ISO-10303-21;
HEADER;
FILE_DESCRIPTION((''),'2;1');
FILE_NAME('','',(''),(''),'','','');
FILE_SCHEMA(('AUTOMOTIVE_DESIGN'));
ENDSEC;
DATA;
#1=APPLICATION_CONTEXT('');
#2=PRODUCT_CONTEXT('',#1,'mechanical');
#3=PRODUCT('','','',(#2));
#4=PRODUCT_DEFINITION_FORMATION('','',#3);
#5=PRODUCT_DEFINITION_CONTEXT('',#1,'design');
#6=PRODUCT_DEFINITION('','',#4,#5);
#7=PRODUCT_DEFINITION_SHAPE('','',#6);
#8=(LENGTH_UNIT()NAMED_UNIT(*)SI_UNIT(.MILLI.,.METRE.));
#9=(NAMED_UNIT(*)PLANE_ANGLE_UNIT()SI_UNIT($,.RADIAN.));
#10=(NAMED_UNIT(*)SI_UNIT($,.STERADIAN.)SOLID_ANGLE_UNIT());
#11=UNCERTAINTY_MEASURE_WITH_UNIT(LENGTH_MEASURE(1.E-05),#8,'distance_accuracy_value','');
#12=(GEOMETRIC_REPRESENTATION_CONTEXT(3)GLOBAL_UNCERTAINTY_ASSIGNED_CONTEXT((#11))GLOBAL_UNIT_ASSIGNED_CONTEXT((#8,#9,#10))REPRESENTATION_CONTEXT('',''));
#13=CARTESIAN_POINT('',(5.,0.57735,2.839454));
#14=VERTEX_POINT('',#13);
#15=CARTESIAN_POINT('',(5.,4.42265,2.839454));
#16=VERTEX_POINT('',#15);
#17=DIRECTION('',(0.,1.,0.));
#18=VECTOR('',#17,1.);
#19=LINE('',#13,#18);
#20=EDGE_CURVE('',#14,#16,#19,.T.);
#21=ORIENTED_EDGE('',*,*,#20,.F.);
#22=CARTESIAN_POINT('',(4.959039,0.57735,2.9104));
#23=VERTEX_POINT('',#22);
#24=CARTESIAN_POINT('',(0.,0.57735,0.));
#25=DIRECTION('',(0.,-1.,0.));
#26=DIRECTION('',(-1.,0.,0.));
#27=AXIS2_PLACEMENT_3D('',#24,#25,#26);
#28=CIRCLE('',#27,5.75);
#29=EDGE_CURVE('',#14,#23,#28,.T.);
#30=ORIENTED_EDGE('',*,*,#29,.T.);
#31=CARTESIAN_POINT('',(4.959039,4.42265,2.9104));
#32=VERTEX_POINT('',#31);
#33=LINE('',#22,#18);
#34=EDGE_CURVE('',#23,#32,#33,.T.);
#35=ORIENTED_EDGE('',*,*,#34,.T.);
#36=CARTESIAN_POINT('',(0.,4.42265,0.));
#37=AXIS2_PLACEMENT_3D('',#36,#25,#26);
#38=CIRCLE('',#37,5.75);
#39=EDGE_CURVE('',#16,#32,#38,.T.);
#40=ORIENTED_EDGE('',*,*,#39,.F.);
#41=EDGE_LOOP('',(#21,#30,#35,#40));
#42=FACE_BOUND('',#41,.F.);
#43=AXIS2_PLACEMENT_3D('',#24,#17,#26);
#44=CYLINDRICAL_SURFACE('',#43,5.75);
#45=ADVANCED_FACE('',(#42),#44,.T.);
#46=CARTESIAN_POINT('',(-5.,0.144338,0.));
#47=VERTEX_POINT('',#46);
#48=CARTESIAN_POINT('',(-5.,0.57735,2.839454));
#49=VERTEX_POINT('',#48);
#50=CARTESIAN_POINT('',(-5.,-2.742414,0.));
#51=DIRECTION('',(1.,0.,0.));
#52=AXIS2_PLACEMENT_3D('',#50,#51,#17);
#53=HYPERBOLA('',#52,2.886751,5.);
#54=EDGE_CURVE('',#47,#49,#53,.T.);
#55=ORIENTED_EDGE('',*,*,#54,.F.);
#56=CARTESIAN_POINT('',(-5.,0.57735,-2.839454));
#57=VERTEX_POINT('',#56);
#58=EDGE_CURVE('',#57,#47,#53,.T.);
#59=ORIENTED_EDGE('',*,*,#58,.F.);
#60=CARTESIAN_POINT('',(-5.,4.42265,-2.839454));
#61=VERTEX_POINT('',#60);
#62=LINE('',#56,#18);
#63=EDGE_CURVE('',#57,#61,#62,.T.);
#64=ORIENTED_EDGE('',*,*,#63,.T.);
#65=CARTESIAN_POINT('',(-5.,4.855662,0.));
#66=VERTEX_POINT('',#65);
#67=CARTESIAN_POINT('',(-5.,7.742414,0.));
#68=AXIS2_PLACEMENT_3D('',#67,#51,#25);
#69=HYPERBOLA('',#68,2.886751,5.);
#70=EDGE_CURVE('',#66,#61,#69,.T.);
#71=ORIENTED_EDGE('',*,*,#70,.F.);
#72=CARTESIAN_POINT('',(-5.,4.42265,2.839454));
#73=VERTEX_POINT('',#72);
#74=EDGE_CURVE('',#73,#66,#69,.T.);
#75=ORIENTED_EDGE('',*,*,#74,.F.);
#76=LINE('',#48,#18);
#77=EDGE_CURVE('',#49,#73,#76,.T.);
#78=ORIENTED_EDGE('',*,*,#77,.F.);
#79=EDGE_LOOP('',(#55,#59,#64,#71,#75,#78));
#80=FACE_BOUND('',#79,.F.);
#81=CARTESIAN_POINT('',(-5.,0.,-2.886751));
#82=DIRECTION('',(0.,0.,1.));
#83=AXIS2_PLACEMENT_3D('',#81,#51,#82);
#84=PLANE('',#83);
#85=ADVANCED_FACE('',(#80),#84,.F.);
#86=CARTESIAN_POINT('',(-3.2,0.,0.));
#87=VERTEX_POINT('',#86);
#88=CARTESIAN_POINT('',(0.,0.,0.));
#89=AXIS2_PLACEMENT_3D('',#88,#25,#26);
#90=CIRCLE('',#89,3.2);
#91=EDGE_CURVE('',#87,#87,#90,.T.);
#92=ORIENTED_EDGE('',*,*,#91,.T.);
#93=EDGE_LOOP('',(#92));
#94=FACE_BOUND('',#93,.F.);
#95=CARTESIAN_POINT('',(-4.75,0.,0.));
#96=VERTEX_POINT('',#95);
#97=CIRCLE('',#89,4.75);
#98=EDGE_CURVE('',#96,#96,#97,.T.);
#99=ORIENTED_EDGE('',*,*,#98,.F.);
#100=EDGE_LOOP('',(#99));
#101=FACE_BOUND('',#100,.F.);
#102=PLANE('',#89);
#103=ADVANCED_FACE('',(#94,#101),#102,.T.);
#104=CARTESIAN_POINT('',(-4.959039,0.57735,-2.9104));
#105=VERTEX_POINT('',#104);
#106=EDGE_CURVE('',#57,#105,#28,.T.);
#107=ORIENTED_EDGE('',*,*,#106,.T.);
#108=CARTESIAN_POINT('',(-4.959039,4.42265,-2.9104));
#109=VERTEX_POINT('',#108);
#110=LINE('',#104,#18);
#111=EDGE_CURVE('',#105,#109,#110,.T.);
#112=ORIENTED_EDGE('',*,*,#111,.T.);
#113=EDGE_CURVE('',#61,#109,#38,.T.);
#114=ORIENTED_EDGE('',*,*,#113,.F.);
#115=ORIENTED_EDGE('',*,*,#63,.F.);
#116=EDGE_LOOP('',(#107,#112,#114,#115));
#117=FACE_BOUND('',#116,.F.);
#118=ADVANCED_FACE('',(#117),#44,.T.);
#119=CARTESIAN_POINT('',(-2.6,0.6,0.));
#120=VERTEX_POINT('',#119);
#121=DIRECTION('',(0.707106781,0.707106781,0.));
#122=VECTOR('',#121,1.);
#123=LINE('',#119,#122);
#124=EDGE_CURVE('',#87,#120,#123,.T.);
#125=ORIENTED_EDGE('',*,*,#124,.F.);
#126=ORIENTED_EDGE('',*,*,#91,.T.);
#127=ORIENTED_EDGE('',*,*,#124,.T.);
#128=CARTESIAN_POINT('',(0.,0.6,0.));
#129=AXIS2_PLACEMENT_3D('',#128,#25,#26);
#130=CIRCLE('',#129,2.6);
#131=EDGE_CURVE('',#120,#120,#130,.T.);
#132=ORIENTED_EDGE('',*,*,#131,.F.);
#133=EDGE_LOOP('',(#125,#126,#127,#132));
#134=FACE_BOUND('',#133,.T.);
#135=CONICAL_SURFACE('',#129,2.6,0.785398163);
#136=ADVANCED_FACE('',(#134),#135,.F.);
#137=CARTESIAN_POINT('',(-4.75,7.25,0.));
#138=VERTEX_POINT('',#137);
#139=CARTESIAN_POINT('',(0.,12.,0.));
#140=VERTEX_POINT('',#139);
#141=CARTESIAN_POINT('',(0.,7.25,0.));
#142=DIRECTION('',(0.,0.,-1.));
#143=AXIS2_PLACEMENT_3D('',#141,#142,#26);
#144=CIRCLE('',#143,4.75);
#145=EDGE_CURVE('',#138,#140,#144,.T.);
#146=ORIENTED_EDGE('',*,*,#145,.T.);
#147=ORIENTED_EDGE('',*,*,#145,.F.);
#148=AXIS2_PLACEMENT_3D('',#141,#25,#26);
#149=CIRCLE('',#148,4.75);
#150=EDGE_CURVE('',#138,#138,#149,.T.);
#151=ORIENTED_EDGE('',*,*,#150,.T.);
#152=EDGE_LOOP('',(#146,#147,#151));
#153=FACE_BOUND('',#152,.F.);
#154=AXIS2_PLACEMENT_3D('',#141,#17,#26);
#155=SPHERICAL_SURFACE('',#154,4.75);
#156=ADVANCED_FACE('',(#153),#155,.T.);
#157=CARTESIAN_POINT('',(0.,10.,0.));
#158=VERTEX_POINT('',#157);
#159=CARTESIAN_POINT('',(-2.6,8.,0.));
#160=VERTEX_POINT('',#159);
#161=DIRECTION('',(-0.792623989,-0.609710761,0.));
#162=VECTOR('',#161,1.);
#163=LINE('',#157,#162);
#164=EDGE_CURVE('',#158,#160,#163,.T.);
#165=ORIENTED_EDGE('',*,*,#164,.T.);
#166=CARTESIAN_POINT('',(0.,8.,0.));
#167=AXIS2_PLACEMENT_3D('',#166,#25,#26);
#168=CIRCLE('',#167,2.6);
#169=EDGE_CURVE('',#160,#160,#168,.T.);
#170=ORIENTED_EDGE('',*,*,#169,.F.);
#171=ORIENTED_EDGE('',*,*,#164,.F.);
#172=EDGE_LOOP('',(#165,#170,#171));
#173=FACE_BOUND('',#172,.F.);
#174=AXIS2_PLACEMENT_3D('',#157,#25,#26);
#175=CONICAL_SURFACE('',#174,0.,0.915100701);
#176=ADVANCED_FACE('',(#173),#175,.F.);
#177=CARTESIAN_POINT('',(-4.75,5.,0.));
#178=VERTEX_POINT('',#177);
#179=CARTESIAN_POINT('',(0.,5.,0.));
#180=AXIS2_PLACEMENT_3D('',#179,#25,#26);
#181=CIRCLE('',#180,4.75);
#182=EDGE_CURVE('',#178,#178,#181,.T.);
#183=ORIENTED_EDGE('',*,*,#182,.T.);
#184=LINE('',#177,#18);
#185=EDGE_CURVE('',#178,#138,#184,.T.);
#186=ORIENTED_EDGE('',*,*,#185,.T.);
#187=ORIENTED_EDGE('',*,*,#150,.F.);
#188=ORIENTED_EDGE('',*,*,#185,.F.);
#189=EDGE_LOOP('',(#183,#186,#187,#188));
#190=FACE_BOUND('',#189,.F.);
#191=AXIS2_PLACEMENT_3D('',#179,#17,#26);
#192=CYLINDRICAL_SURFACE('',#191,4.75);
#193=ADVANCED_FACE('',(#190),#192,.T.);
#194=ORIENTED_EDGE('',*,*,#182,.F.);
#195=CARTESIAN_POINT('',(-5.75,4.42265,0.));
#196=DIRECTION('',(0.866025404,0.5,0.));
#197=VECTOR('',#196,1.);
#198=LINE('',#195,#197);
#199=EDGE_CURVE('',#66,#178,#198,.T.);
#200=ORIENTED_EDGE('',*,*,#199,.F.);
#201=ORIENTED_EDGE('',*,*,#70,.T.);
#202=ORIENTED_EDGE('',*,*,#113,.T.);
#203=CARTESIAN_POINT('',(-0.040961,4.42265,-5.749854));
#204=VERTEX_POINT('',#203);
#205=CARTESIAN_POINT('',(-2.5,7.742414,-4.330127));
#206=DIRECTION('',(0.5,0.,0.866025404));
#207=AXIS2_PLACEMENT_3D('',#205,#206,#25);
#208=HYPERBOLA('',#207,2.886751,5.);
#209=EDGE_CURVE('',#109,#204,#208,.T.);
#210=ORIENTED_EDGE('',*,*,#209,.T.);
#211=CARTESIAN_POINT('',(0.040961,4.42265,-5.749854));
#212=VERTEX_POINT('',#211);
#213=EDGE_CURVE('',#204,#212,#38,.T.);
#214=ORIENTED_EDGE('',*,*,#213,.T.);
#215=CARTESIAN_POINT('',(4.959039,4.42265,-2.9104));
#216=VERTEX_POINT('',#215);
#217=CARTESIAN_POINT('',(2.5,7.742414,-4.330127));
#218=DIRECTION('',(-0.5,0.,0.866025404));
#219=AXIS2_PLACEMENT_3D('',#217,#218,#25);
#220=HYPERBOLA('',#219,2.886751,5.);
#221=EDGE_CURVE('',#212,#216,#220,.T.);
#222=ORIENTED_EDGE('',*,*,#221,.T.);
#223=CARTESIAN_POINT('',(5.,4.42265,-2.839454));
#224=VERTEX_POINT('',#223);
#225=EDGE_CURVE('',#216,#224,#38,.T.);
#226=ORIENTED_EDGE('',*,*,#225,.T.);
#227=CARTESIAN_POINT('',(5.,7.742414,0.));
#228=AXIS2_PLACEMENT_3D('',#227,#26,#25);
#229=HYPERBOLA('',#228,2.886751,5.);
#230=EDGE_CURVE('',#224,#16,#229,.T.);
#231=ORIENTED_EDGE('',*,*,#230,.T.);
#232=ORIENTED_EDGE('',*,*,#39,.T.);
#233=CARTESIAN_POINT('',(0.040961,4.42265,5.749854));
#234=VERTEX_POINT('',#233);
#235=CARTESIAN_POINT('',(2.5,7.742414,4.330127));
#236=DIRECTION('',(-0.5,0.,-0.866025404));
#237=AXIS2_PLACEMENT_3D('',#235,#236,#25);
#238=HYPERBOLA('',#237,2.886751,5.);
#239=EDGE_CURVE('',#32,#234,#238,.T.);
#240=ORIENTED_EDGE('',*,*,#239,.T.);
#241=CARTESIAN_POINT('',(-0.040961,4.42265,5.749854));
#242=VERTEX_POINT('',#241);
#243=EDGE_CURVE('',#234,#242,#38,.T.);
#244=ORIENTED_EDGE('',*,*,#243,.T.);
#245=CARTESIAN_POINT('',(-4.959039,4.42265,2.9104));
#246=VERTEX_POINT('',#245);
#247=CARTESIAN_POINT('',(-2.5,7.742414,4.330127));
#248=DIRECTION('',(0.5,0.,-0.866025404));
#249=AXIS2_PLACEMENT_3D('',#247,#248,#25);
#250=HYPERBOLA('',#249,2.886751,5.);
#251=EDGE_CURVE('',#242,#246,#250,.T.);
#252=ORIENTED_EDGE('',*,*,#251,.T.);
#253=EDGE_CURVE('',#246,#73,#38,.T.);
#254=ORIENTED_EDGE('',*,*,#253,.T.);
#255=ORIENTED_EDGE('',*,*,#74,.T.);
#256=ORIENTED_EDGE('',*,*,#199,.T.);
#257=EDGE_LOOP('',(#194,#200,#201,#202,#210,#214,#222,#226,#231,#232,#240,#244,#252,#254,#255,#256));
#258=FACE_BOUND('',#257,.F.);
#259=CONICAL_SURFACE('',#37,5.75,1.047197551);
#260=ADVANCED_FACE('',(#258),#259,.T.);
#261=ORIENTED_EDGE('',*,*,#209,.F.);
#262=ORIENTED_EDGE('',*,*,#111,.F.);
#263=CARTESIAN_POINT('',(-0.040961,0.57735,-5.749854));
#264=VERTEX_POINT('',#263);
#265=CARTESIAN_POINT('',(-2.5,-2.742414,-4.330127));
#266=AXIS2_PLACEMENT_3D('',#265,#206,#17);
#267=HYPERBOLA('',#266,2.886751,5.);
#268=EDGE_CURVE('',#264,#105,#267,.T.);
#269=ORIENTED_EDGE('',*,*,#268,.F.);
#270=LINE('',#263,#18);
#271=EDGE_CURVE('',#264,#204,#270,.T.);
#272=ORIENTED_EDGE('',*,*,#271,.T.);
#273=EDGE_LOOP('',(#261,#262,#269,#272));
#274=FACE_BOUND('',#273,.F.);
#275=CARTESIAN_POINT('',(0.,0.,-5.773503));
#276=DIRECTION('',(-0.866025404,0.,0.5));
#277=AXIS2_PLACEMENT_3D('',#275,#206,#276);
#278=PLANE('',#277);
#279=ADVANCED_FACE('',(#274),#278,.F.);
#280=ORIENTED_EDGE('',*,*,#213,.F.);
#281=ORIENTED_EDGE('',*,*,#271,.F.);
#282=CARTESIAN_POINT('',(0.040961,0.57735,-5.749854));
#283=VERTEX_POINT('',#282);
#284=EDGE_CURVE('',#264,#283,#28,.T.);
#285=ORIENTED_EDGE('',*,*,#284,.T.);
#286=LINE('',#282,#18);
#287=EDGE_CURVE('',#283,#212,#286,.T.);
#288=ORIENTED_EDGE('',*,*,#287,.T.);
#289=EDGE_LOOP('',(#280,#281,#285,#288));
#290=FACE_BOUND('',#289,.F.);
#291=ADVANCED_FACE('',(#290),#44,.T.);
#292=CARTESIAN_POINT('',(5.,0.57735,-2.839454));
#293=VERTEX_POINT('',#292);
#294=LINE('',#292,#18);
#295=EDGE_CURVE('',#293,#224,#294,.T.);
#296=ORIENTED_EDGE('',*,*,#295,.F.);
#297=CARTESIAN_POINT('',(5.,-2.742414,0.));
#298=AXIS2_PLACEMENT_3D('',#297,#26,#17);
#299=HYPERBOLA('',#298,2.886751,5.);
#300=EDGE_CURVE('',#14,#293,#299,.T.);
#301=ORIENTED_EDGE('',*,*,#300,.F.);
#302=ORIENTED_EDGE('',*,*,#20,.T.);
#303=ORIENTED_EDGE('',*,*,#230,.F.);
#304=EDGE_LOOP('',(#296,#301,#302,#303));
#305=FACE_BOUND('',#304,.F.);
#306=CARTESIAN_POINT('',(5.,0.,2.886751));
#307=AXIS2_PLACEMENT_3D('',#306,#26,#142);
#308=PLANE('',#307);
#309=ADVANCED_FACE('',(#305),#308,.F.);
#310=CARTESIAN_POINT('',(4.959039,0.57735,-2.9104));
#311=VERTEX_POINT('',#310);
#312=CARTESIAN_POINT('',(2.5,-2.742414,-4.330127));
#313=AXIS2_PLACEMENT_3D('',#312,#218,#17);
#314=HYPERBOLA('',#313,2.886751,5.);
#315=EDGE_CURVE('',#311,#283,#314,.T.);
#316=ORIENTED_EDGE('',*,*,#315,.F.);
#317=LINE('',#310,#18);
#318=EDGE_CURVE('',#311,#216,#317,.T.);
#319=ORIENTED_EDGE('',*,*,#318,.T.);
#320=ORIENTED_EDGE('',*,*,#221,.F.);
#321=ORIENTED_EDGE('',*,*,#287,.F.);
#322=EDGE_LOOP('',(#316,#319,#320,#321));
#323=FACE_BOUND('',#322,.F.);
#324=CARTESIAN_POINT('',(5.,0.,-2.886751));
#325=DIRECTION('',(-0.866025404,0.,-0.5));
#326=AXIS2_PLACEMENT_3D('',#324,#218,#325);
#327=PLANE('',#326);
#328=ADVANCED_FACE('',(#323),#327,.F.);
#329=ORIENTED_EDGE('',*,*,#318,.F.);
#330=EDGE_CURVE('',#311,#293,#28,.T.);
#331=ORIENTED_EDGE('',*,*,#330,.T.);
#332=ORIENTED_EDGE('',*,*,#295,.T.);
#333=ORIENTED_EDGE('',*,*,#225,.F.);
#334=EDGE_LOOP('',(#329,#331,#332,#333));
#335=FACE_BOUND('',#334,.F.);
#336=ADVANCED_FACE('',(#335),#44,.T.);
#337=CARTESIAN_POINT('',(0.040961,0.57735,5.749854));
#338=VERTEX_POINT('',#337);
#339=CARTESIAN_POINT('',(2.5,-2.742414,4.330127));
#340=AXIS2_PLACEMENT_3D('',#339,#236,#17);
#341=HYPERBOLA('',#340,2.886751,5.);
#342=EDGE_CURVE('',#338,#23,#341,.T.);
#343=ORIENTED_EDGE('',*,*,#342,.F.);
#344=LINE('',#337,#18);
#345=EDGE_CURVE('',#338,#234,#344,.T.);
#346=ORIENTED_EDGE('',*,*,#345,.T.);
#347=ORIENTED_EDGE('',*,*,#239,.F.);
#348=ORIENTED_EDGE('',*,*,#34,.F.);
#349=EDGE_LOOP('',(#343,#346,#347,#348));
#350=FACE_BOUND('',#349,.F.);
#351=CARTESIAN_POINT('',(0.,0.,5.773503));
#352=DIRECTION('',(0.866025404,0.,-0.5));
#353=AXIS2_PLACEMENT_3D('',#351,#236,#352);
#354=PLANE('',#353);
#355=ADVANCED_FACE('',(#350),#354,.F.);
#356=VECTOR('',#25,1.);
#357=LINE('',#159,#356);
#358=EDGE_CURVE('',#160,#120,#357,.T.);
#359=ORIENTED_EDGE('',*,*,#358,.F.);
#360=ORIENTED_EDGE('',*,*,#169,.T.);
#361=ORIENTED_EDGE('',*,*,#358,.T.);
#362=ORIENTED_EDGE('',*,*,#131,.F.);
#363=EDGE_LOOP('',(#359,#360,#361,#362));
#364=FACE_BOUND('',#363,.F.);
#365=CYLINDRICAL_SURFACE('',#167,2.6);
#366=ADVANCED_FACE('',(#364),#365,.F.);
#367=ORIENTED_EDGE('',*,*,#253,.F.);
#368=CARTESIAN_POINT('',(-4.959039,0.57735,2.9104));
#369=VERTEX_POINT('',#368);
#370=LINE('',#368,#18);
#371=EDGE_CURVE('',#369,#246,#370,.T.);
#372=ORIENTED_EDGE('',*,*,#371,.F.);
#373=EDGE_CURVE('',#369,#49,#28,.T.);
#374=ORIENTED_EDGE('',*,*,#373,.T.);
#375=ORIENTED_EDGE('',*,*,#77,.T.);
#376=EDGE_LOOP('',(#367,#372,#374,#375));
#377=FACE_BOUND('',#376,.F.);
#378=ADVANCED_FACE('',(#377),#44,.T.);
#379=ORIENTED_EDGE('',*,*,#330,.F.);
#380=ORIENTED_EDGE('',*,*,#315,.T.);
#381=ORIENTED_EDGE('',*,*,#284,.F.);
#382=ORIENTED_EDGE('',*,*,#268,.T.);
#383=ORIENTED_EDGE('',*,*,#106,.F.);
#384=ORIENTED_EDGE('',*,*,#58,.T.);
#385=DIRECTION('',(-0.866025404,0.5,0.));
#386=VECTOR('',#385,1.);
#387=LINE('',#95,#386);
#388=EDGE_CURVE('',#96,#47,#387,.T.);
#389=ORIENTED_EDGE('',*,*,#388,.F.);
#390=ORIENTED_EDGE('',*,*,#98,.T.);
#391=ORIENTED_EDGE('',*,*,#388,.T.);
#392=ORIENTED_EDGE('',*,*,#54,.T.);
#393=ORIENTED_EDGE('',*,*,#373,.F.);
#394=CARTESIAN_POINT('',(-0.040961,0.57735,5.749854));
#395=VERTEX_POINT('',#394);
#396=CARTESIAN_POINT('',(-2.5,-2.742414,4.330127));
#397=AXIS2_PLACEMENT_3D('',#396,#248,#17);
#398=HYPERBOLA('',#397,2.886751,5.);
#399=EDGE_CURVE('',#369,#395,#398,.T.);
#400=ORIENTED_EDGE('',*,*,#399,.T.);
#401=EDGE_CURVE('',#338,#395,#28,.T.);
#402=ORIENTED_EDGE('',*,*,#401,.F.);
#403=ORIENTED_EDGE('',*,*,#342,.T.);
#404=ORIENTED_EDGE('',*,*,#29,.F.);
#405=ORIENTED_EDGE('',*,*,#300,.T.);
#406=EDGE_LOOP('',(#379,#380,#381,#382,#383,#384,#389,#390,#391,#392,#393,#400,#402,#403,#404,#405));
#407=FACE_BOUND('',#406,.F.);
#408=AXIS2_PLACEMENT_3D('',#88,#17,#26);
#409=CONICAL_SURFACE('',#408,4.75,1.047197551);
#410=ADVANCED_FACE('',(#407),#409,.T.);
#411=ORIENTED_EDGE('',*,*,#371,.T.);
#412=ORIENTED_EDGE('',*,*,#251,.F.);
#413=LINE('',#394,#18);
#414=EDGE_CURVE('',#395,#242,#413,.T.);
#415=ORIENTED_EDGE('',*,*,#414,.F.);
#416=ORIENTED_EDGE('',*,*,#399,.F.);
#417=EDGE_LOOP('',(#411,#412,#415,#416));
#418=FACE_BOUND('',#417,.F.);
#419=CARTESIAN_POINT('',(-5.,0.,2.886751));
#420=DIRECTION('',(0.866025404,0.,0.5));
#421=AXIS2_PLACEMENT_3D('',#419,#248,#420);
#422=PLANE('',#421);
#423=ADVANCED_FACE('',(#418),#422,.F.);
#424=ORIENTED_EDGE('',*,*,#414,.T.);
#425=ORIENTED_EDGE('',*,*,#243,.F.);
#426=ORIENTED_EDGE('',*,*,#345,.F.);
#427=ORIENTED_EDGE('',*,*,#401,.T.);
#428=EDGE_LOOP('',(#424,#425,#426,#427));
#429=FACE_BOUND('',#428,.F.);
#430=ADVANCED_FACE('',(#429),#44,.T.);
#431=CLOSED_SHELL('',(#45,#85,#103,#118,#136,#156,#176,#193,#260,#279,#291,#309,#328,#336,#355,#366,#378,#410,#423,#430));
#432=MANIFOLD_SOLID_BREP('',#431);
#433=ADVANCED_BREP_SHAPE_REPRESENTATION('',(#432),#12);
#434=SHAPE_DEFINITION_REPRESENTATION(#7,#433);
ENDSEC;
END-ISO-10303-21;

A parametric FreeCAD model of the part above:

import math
import FreeCAD as App
import Part
import Sketcher
Q = App.Units.Quantity


def edges_at(feature, points):
    """Names of the edges that pass closest to the given points."""
    edges = feature.Shape.Edges
    near = lambda p: min(range(len(edges)), key=lambda i: edges[i].distToShape(Part.Vertex(*p))[0])
    return sorted({f"Edge{near(p) + 1}" for p in points})


def add_polygon(sketch, points):
    """Adds a closed chain of lines whose ends are joined by coincident constraints."""
    first, n = sketch.GeometryCount, len(points)
    for a, b in zip(points, points[1:] + points[:1]):
        sketch.addGeometry(Part.LineSegment(App.Vector(*a, 0), App.Vector(*b, 0)), False)
    for i in range(n):
        sketch.addConstraint(Sketcher.Constraint("Coincident", first + i, 2, first + (i + 1) % n, 1))

doc = App.newDocument("Part")
body = doc.addObject("PartDesign::Body", "Body")

sketch1 = body.newObject("Sketcher::SketchObject", "Sketch")
sketch1.AttachmentSupport = (doc.getObject("XY_Plane"), [""])
sketch1.MapMode = "FlatFace"
sketch1.addGeometry(Part.LineSegment(App.Vector(5.8, 0.6, 0), App.Vector(5.8, 4.4, 0)), False)
sketch1.addGeometry(Part.LineSegment(App.Vector(5.8, 4.4, 0), App.Vector(4.8, 5, 0)), False)
sketch1.addGeometry(Part.LineSegment(App.Vector(4.8, 5, 0), App.Vector(4.8, 7.2, 0)), False)
sketch1.addGeometry(Part.ArcOfCircle(Part.Circle(App.Vector(0, 7.3, 0), App.Vector(0, 0, 1), 4.7), math.radians(0), math.radians(90)), False)
sketch1.addGeometry(Part.LineSegment(App.Vector(0, 12, 0), App.Vector(0, 10, 0)), False)
sketch1.addGeometry(Part.LineSegment(App.Vector(0, 10, 0), App.Vector(2.6, 8, 0)), False)
sketch1.addGeometry(Part.LineSegment(App.Vector(2.6, 8, 0), App.Vector(2.6, 0, 0)), False)
sketch1.addGeometry(Part.LineSegment(App.Vector(2.6, 0, 0), App.Vector(4.8, 0, 0)), False)
sketch1.addGeometry(Part.LineSegment(App.Vector(4.8, 0, 0), App.Vector(5.8, 0.6, 0)), False)
sketch1.addConstraint(Sketcher.Constraint("Coincident", 0, 2, 1, 1))
sketch1.addConstraint(Sketcher.Constraint("Coincident", 1, 2, 2, 1))
sketch1.addConstraint(Sketcher.Constraint("Tangent", 2, 2, 3, 1))
sketch1.addConstraint(Sketcher.Constraint("Coincident", 3, 2, 4, 1))
sketch1.addConstraint(Sketcher.Constraint("Coincident", 4, 2, 5, 1))
sketch1.addConstraint(Sketcher.Constraint("Coincident", 5, 2, 6, 1))
sketch1.addConstraint(Sketcher.Constraint("Coincident", 6, 2, 7, 1))
sketch1.addConstraint(Sketcher.Constraint("Coincident", 7, 2, 8, 1))
sketch1.addConstraint(Sketcher.Constraint("Coincident", 8, 2, 0, 1))
sketch1.addConstraint(Sketcher.Constraint("Vertical", 0))
sketch1.addConstraint(Sketcher.Constraint("Vertical", 2))
sketch1.addConstraint(Sketcher.Constraint("Vertical", 4))
sketch1.addConstraint(Sketcher.Constraint("Vertical", 6))
sketch1.addConstraint(Sketcher.Constraint("Horizontal", 7))
sketch1.addConstraint(Sketcher.Constraint("PointOnObject", 3, 3, -2))
sketch1.addConstraint(Sketcher.Constraint("PointOnObject", 3, 2, -2))
sketch1.addConstraint(Sketcher.Constraint("PointOnObject", 6, 2, -1))
sketch1.addConstraint(Sketcher.Constraint("Vertical", 2, 2, 7, 2))
sketch1.addConstraint(Sketcher.Constraint("Equal", 1, 8))
sketch1.addConstraint(Sketcher.Constraint("DistanceY", 4, 2, 4, 1, Q("2 mm")))
sketch1.addConstraint(Sketcher.Constraint("DistanceY", 6, 2, 6, 1, Q("8 mm")))
sketch1.addConstraint(Sketcher.Constraint("Angle", 1, Q("150 deg")))
sketch1.addConstraint(Sketcher.Constraint("Radius", 3, Q("4.75 mm")))
sketch1.addConstraint(Sketcher.Constraint("DistanceY", -1, 1, 1, 2, Q("5 mm")))
sketch1.addConstraint(Sketcher.Constraint("DistanceY", -1, 1, 3, 2, Q("12 mm")))
sketch1.addConstraint(Sketcher.Constraint("DistanceX", 1, 2, 0, 2, Q("1 mm")))
sketch1.addConstraint(Sketcher.Constraint("DistanceX", 7, 1, 7, 2, Q("2.15 mm")))
revolution = body.newObject("PartDesign::Revolution", "Revolution")
revolution.Profile = sketch1
revolution.ReferenceAxis = (sketch1, ["V_Axis"])
revolution.Angle = 360

sketch2 = body.newObject("Sketcher::SketchObject", "Sketch001")
sketch2.AttachmentSupport = (doc.getObject("XZ_Plane"), [""])
sketch2.MapMode = "FlatFace"
add_polygon(sketch2, [(-9, -9), (-9, 9), (9, 9), (9, -9)])
add_polygon(sketch2, [(-5, -3), (0, -6), (5, -3), (5, 3), (0, 6), (-5, 3)])
sketch2.addConstraint(Sketcher.Constraint("Vertical", 0))
sketch2.addConstraint(Sketcher.Constraint("Horizontal", 1))
sketch2.addConstraint(Sketcher.Constraint("Vertical", 2))
sketch2.addConstraint(Sketcher.Constraint("Horizontal", 3))
sketch2.addConstraint(Sketcher.Constraint("Vertical", 6))
sketch2.addConstraint(Sketcher.Constraint("Vertical", 9))
sketch2.addConstraint(Sketcher.Constraint("Symmetric", 0, 2, 2, 2, -1, 1))
sketch2.addConstraint(Sketcher.Constraint("Symmetric", 4, 2, 7, 2, -1, 1))
sketch2.addConstraint(Sketcher.Constraint("Symmetric", 5, 2, 8, 2, -1, 1))
sketch2.addConstraint(Sketcher.Constraint("PointOnObject", 4, 2, -2))
sketch2.addConstraint(Sketcher.Constraint("Parallel", 4, 7))
sketch2.addConstraint(Sketcher.Constraint("Horizontal", 6, 2, 8, 2))
sketch2.addConstraint(Sketcher.Constraint("Equal", 3, 0))
sketch2.addConstraint(Sketcher.Constraint("Angle", 4, Q("-30 deg")))
sketch2.addConstraint(Sketcher.Constraint("DistanceX", -1, 1, 5, 2, Q("5 mm")))
sketch2.addConstraint(Sketcher.Constraint("DistanceX", 1, 1, 1, 2, Q("17.542 mm")))
sketch2.addConstraint(Sketcher.Constraint("DistanceY", 6, 1, 6, 2, Q("5.773503 mm")))
pocket1 = body.newObject("PartDesign::Pocket", "Pocket")
pocket1.Profile = sketch2
pocket1.Type = "ThroughAll"
doc.recompute()

chamfer = body.newObject("PartDesign::Chamfer", "Chamfer")
chamfer.Base = (pocket1, edges_at(pocket1, [(2.6, 0, 0)]))
chamfer.Size = 0.6

doc.recompute()
